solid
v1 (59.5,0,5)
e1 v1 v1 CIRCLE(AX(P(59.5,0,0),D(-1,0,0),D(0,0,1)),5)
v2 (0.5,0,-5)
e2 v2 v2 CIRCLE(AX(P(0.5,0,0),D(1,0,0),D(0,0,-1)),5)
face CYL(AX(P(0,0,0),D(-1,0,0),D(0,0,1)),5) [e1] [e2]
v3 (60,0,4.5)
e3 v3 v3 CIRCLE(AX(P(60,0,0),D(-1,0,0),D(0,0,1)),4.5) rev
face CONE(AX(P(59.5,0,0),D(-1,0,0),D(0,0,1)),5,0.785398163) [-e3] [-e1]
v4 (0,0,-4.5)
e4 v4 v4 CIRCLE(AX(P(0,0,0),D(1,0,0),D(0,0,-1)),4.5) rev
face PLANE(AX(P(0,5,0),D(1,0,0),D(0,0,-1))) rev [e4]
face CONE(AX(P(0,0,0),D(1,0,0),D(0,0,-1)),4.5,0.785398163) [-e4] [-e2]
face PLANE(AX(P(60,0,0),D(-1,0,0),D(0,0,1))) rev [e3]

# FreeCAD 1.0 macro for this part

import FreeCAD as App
import Part
import Sketcher
Q = App.Units.Quantity


def edges_at(feature, points):
    """Names of the edges that pass closest to the given points."""
    edges = feature.Shape.Edges
    near = lambda p: min(range(len(edges)), key=lambda i: edges[i].distToShape(Part.Vertex(*p))[0])
    return sorted({f"Edge{near(p) + 1}" for p in points})


def add_polygon(sketch, points):
    """Adds a closed chain of lines whose ends are joined by coincident constraints."""
    first, n = sketch.GeometryCount, len(points)
    for a, b in zip(points, points[1:] + points[:1]):
        sketch.addGeometry(Part.LineSegment(App.Vector(*a, 0), App.Vector(*b, 0)), False)
    for i in range(n):
        sketch.addConstraint(Sketcher.Constraint("Coincident", first + i, 2, first + (i + 1) % n, 1))

doc = App.newDocument("Part")
body = doc.addObject("PartDesign::Body", "Body")

# Sketch on XY plane
sketch1 = doc.addObject("Sketcher::SketchObject", "Sketch")
body.addObject(sketch1)
sketch1.AttachmentSupport = (doc.XY_Plane, [""])
sketch1.MapMode = "FlatFace"
add_polygon(sketch1, [(0, 5), (0, 0), (60, 0), (60, 5)])  # lines 0-3
sketch1.addConstraint([
    Sketcher.Constraint("Vertical", 0),
    Sketcher.Constraint("Horizontal", 1),
    Sketcher.Constraint("Vertical", 2),
    Sketcher.Constraint("Horizontal", 3),
    Sketcher.Constraint("Coincident", 0, 2, -1, 1),
    Sketcher.Constraint("DistanceX", 1, 1, 1, 2, Q("60 mm")),
    Sketcher.Constraint("DistanceY", 0, 2, 0, 1, Q("5 mm")),
])
revolution = doc.addObject("PartDesign::Revolution", "Revolution")
body.addObject(revolution)
revolution.Profile = sketch1
revolution.ReferenceAxis = (sketch1, ["H_Axis"])
revolution.Angle = 360
doc.recompute()

chamfer = doc.addObject("PartDesign::Chamfer", "Chamfer")
body.addObject(chamfer)
chamfer.Base = (revolution, edges_at(revolution, [(0, 0, -5), (60, 0, -5)]))
chamfer.Size = 0.5

doc.recompute()
